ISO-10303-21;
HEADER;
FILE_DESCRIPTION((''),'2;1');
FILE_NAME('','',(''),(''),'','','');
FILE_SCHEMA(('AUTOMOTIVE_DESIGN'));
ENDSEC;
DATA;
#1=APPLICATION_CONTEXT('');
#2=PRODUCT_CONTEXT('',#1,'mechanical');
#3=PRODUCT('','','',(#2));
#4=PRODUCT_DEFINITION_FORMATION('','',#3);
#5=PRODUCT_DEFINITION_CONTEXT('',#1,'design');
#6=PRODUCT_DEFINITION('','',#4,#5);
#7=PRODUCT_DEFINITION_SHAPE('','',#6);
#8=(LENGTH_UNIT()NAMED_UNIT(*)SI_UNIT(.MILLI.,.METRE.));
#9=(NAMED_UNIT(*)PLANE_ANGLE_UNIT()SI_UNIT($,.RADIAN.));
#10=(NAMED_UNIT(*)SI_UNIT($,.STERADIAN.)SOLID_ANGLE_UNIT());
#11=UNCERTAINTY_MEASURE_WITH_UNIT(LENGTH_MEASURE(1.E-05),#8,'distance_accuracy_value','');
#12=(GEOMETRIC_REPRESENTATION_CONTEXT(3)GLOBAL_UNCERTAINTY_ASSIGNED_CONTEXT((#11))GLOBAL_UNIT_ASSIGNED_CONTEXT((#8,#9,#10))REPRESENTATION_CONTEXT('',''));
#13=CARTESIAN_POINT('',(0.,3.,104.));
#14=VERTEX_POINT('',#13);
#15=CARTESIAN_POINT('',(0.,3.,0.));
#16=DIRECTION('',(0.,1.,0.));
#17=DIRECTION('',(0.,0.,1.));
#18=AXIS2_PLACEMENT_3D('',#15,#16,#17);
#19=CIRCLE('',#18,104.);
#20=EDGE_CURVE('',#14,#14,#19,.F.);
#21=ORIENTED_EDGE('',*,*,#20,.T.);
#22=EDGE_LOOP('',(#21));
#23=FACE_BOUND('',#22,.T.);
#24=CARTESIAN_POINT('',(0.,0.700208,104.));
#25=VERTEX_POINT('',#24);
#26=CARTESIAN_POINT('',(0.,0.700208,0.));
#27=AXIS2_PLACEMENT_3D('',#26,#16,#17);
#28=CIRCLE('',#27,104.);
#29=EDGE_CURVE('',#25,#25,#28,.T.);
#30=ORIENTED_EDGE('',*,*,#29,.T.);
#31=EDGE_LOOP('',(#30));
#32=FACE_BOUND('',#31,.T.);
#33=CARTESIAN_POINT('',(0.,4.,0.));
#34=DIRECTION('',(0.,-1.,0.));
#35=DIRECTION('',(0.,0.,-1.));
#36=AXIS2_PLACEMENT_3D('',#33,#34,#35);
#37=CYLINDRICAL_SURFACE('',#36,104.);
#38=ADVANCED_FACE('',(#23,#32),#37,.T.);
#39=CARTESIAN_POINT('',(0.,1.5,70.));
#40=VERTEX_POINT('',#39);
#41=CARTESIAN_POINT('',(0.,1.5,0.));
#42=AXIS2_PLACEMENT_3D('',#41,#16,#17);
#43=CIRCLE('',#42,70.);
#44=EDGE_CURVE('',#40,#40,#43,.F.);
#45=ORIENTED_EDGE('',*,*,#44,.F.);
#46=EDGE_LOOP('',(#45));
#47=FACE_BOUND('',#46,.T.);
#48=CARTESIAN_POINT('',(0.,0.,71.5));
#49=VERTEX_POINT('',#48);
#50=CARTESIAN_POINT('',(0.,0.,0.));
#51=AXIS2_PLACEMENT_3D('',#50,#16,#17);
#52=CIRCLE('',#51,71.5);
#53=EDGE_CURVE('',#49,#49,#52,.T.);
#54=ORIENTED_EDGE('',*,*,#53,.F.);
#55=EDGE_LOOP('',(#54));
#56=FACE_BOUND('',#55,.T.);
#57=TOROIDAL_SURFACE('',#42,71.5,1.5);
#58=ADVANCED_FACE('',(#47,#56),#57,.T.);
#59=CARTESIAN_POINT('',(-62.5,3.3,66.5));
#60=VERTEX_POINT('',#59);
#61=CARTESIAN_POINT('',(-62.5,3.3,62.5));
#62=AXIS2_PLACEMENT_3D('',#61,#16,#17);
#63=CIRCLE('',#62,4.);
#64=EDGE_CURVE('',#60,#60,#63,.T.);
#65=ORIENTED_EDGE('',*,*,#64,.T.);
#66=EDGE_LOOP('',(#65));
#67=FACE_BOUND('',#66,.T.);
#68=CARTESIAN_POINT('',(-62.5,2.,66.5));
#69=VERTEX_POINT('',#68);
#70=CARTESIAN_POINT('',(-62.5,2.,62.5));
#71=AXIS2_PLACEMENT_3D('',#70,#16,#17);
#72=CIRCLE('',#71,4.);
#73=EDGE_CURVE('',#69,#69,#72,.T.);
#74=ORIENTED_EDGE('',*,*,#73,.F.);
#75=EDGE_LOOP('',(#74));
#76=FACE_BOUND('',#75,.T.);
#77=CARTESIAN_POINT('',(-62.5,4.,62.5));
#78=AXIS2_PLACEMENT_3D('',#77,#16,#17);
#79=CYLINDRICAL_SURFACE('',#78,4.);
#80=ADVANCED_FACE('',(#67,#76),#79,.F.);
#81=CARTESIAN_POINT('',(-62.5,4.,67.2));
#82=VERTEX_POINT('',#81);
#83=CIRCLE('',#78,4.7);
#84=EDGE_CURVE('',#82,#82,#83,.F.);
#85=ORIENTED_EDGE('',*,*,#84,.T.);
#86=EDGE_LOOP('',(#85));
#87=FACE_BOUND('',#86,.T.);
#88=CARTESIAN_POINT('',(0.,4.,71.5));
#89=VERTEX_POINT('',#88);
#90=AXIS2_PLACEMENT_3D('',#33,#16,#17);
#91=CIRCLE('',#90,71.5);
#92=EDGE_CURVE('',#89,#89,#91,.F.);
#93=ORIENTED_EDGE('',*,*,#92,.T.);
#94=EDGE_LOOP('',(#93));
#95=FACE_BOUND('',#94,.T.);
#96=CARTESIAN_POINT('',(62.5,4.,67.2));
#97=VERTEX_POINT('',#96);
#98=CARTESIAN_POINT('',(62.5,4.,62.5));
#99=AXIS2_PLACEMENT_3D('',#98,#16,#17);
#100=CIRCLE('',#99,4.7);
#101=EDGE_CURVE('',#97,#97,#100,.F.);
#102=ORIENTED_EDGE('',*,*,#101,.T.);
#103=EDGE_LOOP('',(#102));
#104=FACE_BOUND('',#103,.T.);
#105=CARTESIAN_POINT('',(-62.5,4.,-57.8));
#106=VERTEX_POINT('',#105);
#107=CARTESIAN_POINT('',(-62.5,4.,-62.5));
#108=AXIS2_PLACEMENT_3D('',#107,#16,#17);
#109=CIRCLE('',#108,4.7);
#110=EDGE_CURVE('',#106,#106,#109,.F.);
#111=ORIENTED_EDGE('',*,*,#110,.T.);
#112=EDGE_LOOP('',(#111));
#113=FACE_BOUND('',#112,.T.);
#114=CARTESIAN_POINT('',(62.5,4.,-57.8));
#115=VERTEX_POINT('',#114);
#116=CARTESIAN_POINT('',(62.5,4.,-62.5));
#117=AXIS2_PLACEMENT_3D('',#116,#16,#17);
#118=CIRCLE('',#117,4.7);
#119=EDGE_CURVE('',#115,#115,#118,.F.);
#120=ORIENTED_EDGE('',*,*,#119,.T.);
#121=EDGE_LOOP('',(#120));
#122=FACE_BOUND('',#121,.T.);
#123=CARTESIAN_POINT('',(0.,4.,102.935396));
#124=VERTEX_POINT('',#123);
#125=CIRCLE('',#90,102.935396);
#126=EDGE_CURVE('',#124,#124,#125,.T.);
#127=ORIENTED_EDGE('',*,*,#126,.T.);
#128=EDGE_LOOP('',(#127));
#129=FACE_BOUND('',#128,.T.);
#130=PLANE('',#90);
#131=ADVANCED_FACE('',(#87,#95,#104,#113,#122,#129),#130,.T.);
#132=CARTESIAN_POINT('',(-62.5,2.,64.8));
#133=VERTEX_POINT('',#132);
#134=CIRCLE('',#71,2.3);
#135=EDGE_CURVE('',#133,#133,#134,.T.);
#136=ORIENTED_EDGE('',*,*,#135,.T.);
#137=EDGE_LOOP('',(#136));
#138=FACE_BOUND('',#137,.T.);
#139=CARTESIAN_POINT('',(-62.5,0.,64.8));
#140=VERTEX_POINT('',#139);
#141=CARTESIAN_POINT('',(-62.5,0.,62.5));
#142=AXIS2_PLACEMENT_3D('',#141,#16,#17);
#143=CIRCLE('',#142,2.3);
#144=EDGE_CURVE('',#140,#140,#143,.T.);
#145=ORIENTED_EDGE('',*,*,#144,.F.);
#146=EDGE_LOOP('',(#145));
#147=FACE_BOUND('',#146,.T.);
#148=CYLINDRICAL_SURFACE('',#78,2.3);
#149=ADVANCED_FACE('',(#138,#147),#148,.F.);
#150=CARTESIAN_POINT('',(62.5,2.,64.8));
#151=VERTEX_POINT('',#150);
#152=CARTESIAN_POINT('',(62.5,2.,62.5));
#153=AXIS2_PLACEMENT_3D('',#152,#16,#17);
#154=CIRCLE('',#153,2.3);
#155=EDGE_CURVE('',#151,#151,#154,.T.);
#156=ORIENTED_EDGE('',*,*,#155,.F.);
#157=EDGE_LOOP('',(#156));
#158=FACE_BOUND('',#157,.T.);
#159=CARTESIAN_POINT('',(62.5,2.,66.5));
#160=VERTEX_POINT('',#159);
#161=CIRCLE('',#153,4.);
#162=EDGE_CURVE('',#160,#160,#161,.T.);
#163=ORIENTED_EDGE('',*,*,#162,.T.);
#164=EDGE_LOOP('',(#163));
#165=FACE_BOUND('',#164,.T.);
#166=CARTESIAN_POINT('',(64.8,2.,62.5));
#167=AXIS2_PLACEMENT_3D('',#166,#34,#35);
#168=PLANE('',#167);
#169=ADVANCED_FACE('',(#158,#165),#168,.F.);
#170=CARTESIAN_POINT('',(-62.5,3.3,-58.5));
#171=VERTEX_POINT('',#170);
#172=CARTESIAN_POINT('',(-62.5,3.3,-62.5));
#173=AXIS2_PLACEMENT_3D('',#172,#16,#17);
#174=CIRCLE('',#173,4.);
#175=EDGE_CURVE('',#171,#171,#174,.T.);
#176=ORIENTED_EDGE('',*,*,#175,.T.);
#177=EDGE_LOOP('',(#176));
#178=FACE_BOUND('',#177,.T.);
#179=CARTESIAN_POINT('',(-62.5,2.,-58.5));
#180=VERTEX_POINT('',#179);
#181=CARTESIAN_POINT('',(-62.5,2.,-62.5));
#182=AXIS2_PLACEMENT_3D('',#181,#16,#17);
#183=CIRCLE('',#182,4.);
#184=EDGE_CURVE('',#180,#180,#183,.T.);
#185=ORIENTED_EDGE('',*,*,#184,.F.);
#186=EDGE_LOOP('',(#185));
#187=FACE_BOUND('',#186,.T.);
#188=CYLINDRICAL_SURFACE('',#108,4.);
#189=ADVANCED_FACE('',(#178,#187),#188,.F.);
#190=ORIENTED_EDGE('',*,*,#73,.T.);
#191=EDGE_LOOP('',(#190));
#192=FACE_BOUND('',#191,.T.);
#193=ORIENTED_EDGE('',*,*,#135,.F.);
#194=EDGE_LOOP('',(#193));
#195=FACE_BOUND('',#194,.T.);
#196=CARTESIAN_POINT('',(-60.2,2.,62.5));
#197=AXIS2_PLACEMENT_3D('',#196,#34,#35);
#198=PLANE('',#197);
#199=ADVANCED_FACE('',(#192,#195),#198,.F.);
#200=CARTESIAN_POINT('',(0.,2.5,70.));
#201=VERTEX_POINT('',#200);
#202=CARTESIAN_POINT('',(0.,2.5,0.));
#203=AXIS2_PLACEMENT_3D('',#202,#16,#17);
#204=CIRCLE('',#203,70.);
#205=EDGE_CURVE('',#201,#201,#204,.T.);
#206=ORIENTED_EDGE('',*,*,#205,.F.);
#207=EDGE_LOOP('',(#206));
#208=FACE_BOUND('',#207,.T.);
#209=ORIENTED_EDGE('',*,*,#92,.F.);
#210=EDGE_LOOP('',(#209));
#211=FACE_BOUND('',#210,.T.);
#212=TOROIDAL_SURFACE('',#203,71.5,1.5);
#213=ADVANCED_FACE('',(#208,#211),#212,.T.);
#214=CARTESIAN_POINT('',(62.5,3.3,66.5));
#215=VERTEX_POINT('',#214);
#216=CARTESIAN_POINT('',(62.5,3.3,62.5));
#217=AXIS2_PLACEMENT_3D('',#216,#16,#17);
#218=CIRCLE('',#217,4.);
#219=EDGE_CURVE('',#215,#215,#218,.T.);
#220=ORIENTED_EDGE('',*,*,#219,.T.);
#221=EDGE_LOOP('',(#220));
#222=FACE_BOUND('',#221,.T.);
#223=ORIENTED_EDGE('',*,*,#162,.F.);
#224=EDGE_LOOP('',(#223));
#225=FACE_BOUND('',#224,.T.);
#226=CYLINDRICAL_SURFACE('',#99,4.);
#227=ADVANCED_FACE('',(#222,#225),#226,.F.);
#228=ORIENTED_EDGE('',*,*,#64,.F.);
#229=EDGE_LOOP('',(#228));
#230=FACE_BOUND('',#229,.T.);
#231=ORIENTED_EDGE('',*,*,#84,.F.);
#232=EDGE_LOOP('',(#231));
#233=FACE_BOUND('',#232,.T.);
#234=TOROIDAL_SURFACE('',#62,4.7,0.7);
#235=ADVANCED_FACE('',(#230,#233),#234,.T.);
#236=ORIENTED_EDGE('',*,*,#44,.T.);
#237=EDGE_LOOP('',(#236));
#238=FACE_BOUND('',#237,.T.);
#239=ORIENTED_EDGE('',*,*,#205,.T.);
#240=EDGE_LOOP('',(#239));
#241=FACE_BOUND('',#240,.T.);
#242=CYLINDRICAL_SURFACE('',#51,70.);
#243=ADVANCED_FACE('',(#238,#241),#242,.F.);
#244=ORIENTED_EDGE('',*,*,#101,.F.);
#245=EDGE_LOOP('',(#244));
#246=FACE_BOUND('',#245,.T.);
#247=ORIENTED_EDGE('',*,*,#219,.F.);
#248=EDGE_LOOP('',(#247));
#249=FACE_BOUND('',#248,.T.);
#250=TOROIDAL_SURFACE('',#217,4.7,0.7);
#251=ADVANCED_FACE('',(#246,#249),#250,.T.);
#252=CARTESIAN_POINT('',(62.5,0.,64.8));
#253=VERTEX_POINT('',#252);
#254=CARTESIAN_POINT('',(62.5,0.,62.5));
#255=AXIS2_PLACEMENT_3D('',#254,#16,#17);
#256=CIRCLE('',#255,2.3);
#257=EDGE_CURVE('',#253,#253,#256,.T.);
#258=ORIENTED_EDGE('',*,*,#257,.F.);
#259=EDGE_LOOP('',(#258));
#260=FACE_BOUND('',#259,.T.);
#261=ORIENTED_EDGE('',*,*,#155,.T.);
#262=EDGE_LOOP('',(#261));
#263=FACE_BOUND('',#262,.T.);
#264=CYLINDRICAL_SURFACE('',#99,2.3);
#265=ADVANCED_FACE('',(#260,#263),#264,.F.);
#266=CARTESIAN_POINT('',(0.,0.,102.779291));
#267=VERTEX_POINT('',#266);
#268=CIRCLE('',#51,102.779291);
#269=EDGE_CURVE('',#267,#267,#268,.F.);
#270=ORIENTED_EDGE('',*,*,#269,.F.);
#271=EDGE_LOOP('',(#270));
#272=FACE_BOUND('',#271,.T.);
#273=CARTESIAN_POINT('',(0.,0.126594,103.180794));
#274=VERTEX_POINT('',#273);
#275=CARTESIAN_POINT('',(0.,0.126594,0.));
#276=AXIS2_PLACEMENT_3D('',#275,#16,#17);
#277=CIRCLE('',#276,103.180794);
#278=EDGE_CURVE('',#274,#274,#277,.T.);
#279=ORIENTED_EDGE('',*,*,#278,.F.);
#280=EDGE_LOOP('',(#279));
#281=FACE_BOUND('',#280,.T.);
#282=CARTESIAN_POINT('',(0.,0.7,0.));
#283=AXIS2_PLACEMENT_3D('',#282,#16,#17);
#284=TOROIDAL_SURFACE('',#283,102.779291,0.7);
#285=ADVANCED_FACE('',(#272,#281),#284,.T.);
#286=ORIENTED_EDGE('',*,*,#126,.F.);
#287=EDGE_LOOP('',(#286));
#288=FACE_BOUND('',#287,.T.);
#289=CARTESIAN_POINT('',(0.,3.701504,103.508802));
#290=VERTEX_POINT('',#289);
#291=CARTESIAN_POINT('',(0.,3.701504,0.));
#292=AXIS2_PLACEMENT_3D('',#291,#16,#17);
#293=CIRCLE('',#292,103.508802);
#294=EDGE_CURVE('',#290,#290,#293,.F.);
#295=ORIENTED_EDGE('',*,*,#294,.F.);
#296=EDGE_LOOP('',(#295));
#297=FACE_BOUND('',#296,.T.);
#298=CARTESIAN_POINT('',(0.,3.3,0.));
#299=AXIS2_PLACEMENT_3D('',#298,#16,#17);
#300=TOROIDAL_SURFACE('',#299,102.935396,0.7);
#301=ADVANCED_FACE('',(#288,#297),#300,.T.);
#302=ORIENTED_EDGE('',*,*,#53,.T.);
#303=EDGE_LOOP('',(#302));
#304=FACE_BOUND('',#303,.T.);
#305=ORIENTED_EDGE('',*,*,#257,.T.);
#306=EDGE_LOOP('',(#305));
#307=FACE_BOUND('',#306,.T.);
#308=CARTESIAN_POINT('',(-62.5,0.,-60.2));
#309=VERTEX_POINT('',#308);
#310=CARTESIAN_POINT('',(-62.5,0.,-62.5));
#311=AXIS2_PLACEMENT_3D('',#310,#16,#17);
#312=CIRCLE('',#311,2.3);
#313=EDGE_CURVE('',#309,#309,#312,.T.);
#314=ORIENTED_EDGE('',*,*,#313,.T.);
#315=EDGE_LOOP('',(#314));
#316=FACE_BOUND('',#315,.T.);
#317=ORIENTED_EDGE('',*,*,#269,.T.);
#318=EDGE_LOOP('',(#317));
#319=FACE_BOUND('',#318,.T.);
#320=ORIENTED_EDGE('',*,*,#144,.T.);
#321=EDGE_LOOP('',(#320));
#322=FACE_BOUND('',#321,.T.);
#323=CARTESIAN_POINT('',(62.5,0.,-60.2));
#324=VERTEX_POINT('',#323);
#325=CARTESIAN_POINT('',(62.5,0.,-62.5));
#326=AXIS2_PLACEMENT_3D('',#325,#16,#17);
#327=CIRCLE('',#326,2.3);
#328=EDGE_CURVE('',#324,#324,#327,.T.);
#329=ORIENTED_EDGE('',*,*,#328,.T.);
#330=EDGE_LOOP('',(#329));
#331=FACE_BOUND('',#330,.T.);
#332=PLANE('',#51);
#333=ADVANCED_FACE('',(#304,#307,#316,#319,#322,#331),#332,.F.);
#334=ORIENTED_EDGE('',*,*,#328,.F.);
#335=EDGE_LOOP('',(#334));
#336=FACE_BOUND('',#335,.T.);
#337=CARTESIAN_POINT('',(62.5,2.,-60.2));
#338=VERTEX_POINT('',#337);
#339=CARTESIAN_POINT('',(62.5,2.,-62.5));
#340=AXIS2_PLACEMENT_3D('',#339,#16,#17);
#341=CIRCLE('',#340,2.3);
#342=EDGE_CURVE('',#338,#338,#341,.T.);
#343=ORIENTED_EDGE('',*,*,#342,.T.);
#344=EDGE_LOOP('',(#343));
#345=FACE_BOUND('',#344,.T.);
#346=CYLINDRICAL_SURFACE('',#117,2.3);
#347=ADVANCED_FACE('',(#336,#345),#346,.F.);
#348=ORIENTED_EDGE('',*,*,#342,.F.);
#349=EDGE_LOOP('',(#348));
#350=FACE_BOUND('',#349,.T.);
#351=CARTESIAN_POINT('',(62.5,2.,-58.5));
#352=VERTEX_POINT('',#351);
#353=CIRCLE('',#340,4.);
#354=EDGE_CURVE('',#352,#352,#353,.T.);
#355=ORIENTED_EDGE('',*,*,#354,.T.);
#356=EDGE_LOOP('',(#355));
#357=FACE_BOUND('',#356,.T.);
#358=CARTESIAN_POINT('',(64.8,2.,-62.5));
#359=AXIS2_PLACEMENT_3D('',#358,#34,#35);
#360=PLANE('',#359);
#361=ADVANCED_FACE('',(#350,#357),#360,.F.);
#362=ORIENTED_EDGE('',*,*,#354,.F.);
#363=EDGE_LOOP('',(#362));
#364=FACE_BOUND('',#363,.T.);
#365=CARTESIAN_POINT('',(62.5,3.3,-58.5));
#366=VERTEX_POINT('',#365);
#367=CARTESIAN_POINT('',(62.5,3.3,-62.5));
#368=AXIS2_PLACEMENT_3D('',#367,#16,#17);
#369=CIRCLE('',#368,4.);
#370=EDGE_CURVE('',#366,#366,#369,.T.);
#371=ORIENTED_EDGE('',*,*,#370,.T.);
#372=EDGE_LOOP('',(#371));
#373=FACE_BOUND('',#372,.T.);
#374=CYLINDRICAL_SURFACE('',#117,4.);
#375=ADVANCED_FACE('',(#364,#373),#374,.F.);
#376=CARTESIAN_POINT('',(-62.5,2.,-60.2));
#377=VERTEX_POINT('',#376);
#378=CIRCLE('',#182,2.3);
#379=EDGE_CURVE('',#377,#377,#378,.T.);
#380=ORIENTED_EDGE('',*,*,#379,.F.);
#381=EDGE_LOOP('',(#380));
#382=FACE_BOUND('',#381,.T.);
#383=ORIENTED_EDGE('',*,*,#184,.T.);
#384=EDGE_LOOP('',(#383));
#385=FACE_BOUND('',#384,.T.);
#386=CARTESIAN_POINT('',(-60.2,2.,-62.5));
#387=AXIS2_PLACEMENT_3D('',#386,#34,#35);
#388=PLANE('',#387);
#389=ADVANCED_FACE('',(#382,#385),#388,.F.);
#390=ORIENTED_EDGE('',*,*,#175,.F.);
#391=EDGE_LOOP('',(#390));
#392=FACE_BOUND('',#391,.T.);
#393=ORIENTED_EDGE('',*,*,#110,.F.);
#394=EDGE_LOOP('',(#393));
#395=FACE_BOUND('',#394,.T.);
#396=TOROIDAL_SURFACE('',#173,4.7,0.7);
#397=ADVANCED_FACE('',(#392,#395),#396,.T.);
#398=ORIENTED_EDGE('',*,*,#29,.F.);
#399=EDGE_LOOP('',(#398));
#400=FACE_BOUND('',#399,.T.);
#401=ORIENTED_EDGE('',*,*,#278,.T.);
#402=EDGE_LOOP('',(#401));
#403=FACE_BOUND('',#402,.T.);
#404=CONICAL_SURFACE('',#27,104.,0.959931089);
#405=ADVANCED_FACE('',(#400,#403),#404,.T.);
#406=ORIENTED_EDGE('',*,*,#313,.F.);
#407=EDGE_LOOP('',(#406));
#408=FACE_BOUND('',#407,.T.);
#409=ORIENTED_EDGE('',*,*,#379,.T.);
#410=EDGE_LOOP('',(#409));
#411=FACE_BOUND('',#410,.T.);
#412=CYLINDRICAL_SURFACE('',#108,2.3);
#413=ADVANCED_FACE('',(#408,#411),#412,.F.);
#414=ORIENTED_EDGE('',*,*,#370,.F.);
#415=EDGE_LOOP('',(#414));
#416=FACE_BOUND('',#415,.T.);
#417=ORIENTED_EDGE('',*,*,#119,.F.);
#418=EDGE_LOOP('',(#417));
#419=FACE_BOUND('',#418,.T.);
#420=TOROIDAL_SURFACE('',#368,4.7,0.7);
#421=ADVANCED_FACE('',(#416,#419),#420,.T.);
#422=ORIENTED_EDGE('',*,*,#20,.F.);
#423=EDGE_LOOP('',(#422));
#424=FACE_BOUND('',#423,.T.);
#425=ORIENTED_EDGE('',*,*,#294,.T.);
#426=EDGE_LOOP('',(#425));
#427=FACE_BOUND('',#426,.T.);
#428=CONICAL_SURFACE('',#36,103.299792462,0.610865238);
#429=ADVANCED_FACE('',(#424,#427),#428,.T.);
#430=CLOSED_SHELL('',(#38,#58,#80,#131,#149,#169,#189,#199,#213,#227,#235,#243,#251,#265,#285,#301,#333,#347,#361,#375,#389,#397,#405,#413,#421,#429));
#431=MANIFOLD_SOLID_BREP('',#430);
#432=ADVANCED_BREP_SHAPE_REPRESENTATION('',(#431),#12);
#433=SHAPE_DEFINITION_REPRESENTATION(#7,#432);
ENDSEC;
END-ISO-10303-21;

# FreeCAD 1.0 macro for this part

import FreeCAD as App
import Part
import Sketcher
Q = App.Units.Quantity


def edges_at(feature, points):
    """Names of the edges that pass closest to the given points."""
    edges = feature.Shape.Edges
    near = lambda p: min(range(len(edges)), key=lambda i: edges[i].distToShape(Part.Vertex(*p))[0])
    return sorted({f"Edge{near(p) + 1}" for p in points})

doc = App.newDocument("Part")
body = doc.addObject("PartDesign::Body", "Body")

# Sketch on XZ plane
sketch1 = body.newObject("Sketcher::SketchObject", "Sketch")
sketch1.AttachmentSupport = (doc.getObject("XZ_Plane"), [""])
sketch1.MapMode = "FlatFace"
sketch1.addGeometry(Part.Circle(App.Vector(0, 0, 0), App.Vector(0, 0, 1), 104), False)
sketch1.addConstraint(Sketcher.Constraint("Coincident", 0, 3, -1, 1))
sketch1.addConstraint(Sketcher.Constraint("Diameter", 0, Q("208 mm")))
pad1 = body.newObject("PartDesign::Pad", "Pad")
pad1.Profile = sketch1
pad1.Length = 4
pad1.Reversed = True

# Sketch on XZ plane
sketch2 = body.newObject("Sketcher::SketchObject", "Sketch001")
sketch2.AttachmentSupport = (doc.getObject("XZ_Plane"), [""])
sketch2.MapMode = "FlatFace"
sketch2.AttachmentOffset = App.Placement(App.Vector(0, 0, -4), App.Rotation())
sketch2.addGeometry(Part.Circle(App.Vector(-62.5, -62.5, 0), App.Vector(0, 0, 1), 2.3), False)
sketch2.addGeometry(Part.Circle(App.Vector(62.5, -62.5, 0), App.Vector(0, 0, 1), 2.3), False)
sketch2.addGeometry(Part.Circle(App.Vector(62.5, 62.5, 0), App.Vector(0, 0, 1), 2.3), False)
sketch2.addGeometry(Part.Circle(App.Vector(-62.5, 62.5, 0), App.Vector(0, 0, 1), 2.3), False)
sketch2.addConstraint(Sketcher.Constraint("Equal", 0, 1))
sketch2.addConstraint(Sketcher.Constraint("Equal", 1, 2))
sketch2.addConstraint(Sketcher.Constraint("Equal", 2, 3))
sketch2.addConstraint(Sketcher.Constraint("Symmetric", 0, 3, 2, 3, -1, 1))
sketch2.addConstraint(Sketcher.Constraint("Symmetric", 1, 3, 3, 3, -1, 1))
sketch2.addConstraint(Sketcher.Constraint("Symmetric", 0, 3, 1, 3, -2))
sketch2.addConstraint(Sketcher.Constraint("Diameter", 0, Q("4.6 mm")))
sketch2.addConstraint(Sketcher.Constraint("DistanceX", 0, 3, 1, 3, Q("125 mm")))
sketch2.addConstraint(Sketcher.Constraint("DistanceY", 1, 3, 2, 3, Q("125 mm")))
doc.recompute()
hole = body.newObject("PartDesign::Hole", "Hole")
hole.Profile = sketch2
hole.ThreadType = "None"
hole.Diameter = 4.6
hole.DepthType = "ThroughAll"
hole.HoleCutType = "Counterbore"
hole.HoleCutDiameter = 8
hole.HoleCutDepth = 2
hole.Reversed = True

# Sketch on XZ plane
sketch3 = body.newObject("Sketcher::SketchObject", "Sketch002")
sketch3.AttachmentSupport = (doc.getObject("XZ_Plane"), [""])
sketch3.MapMode = "FlatFace"
sketch3.AttachmentOffset = App.Placement(App.Vector(0, 0, -4), App.Rotation())
sketch3.addGeometry(Part.Circle(App.Vector(0, 0, 0), App.Vector(0, 0, 1), 70), False)
sketch3.addConstraint(Sketcher.Constraint("Coincident", 0, 3, -1, 1))
sketch3.addConstraint(Sketcher.Constraint("Diameter", 0, Q("140 mm")))
pocket1 = body.newObject("PartDesign::Pocket", "Pocket")
pocket1.Profile = sketch3
pocket1.Length = 4
pocket1.Reversed = True
doc.recompute()

fillet = body.newObject("PartDesign::Fillet", "Fillet")
fillet.Base = (pocket1, edges_at(pocket1, [(-70, 0, 0), (-70, 4, 0)]))
fillet.Radius = 1.5
doc.recompute()

chamfer = body.newObject("PartDesign::Chamfer", "Chamfer")
chamfer.Base = (fillet, edges_at(fillet, [(-104, 0, 0)]))
chamfer.ChamferType = "Two distances"
chamfer.Size = 1
chamfer.Size2 = 0.700208
doc.recompute()

chamfer2 = body.newObject("PartDesign::Chamfer", "Chamfer001")
chamfer2.Base = (chamfer, edges_at(chamfer, [(-104, 4, 0)]))
chamfer2.ChamferType = "Two distances"
chamfer2.Size = 1
chamfer2.Size2 = 0.700208
doc.recompute()

fillet2 = body.newObject("PartDesign::Fillet", "Fillet001")
fillet2.Base = (chamfer2, edges_at(chamfer2, [
    (-66.5, 4, 62.5),
    (58.5, 4, 62.5),
    (58.5, 4, -62.5),
    (-66.5, 4, -62.5),
]))
fillet2.Radius = 0.7
doc.recompute()

fillet3 = body.newObject("PartDesign::Fillet", "Fillet002")
fillet3.Base = (fillet2, edges_at(fillet2, [(-103, 0, 0)]))
fillet3.Radius = 0.7
doc.recompute()

fillet4 = body.newObject("PartDesign::Fillet", "Fillet003")
fillet4.Base = (fillet3, edges_at(fillet3, [(-103.3, 4, 0)]))
fillet4.Radius = 0.7

doc.recompute()
